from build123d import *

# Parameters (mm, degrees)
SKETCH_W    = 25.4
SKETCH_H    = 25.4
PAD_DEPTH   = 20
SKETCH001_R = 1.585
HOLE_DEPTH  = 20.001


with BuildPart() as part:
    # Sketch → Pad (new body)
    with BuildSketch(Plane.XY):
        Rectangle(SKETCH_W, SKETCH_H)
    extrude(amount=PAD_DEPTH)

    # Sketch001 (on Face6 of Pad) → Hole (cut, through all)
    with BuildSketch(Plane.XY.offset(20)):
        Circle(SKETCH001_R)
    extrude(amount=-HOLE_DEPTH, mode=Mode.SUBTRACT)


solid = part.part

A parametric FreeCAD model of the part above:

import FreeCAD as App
import Part
import Sketcher


def add_polygon(sketch, points):
    """Adds a closed chain of lines whose ends are joined by coincident constraints."""
    first, n = sketch.GeometryCount, len(points)
    for a, b in zip(points, points[1:] + points[:1]):
        sketch.addGeometry(Part.LineSegment(App.Vector(*a, 0), App.Vector(*b, 0)), False)
    for i in range(n):
        sketch.addConstraint(Sketcher.Constraint("Coincident", first + i, 2, first + (i + 1) % n, 1))

doc = App.newDocument("Part")
body = doc.addObject("PartDesign::Body", "Body")

sketch1 = body.newObject("Sketcher::SketchObject", "Sketch")
sketch1.AttachmentSupport = (doc.getObject("XY_Plane"), [""])
sketch1.MapMode = "FlatFace"
add_polygon(sketch1, [(-13, 13), (-13, -13), (13, -13), (13, 13)])
sketch1.addConstraint([
    Sketcher.Constraint("Vertical", 0),
    Sketcher.Constraint("Horizontal", 1),
    Sketcher.Constraint("Vertical", 2),
    Sketcher.Constraint("Horizontal", 3),
    Sketcher.Constraint("Symmetric", 0, 2, 2, 2, -1, 1),
    Sketcher.Constraint("Equal", 3, 0),
    Sketcher.Constraint("DistanceX", 1, 1, 1, 2, 25.4),
])
pad1 = body.newObject("PartDesign::Pad", "Pad")
pad1.Profile = sketch1
pad1.Length = 20

sketch2 = body.newObject("Sketcher::SketchObject", "Sketch001")
sketch2.AttachmentSupport = (doc.getObject("XY_Plane"), [""])
sketch2.MapMode = "FlatFace"
sketch2.AttachmentOffset = App.Placement(App.Vector(0, 0, 20), App.Rotation())
sketch2.addGeometry(Part.Circle(App.Vector(0, 0, 0), App.Vector(0, 0, 1), 1.6), False)
sketch2.addConstraint([
    Sketcher.Constraint("Coincident", 0, 3, -1, 1),
    Sketcher.Constraint("Diameter", 0, 3.17),
])
pocket1 = body.newObject("PartDesign::Pocket", "Pocket")
pocket1.Profile = sketch2
pocket1.Type = "ThroughAll"

doc.recompute()
